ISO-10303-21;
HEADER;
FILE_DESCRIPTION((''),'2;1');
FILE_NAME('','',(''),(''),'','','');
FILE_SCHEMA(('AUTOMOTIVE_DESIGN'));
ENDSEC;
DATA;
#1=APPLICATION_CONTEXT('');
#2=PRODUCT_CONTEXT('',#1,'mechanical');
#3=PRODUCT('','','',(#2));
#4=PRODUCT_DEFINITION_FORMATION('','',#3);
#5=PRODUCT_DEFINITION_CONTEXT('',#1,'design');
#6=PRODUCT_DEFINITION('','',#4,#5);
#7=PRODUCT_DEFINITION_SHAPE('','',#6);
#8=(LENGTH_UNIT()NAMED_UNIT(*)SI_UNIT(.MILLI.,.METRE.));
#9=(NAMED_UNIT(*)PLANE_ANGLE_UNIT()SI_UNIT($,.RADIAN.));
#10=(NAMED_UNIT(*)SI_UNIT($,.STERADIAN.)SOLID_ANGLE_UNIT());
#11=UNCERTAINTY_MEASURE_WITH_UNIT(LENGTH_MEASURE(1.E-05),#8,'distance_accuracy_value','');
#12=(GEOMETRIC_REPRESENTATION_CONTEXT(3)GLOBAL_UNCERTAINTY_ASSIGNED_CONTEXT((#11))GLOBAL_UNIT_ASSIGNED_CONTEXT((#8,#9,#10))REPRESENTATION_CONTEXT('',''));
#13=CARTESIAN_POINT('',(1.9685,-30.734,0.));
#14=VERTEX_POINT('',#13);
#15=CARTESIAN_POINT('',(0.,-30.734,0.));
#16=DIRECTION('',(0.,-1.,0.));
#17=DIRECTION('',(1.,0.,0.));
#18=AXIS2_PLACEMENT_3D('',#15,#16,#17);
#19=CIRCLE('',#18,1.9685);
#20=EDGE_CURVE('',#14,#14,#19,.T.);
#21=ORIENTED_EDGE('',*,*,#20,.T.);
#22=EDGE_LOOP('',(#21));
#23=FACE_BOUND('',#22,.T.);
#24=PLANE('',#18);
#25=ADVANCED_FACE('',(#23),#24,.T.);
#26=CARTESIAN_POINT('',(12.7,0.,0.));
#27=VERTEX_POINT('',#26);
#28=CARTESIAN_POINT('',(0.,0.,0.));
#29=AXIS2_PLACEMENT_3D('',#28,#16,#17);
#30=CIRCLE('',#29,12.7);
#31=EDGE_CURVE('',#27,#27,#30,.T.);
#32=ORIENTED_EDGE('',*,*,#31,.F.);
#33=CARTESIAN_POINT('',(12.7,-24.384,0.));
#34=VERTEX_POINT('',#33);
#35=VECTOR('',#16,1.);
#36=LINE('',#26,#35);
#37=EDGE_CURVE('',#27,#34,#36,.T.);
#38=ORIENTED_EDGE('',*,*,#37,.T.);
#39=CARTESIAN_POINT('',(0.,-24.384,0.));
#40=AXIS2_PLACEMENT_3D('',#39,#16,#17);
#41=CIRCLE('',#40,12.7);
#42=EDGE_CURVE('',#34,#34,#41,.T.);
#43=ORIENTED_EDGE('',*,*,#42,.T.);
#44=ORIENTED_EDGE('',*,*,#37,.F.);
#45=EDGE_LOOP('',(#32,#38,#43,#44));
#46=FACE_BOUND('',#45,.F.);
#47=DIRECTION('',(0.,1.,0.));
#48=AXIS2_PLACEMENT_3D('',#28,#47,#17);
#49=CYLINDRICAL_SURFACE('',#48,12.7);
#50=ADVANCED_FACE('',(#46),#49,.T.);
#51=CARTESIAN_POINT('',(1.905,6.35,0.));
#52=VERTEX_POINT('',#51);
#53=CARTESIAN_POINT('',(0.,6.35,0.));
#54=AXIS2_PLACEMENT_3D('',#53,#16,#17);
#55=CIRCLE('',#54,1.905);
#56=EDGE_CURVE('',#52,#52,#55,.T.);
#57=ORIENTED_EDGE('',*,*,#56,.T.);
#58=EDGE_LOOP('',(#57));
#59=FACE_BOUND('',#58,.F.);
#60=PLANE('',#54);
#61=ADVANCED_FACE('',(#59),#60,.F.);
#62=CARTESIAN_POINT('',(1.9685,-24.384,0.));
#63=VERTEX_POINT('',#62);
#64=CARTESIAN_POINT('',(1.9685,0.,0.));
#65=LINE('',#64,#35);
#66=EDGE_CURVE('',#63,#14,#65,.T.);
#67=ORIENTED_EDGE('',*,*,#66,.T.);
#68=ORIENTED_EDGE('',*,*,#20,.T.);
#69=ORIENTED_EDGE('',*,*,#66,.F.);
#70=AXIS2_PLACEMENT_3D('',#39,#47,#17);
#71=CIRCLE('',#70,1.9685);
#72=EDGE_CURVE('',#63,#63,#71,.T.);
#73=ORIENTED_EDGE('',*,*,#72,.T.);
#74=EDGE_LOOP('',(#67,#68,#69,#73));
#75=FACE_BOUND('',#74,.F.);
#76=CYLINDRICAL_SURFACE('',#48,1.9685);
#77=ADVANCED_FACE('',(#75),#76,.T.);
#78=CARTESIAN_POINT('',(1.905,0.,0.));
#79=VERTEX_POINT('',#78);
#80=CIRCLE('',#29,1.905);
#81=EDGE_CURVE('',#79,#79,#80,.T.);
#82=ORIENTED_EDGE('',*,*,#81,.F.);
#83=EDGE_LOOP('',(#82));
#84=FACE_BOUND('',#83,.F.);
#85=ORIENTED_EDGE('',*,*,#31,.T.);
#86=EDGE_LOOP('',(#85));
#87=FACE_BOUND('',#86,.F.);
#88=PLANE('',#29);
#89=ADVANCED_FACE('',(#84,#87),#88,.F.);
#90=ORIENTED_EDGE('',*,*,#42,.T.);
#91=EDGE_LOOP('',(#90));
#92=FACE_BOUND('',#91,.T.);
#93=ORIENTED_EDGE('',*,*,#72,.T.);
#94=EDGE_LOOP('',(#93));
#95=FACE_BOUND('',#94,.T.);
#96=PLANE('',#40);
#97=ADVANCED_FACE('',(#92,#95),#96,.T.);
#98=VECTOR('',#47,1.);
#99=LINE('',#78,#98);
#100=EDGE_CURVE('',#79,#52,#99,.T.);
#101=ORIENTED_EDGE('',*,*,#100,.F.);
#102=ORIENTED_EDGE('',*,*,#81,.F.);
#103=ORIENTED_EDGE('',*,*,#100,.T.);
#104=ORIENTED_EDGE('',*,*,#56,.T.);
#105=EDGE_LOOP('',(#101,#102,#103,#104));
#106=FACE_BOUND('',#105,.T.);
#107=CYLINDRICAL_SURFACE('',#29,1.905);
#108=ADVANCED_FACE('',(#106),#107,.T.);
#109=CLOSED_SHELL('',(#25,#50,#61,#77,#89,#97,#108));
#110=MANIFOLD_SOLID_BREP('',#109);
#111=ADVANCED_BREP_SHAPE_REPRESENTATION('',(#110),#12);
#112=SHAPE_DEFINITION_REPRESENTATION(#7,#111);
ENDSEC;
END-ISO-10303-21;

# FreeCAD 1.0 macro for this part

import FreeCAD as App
import Part
import Sketcher
Q = App.Units.Quantity

doc = App.newDocument("Part")
body = doc.addObject("PartDesign::Body", "Body")

# Sketch on XZ plane
sketch1 = doc.addObject("Sketcher::SketchObject", "Sketch")
body.addObject(sketch1)
sketch1.AttachmentSupport = (doc.XZ_Plane, [""])
sketch1.MapMode = "FlatFace"
sketch1.addGeometry(Part.Circle(App.Vector(0, 0, 0), App.Vector(0, 0, 1), 13), False)
sketch1.addConstraint([
    Sketcher.Constraint("Coincident", 0, 3, -1, 1),
    Sketcher.Constraint("Diameter", 0, Q("1 in")),
])
pad1 = doc.addObject("PartDesign::Pad", "Pad")
body.addObject(pad1)
pad1.Profile = sketch1
pad1.Length = Q("0.96 in")

# Sketch on XZ plane
sketch2 = doc.addObject("Sketcher::SketchObject", "Sketch001")
body.addObject(sketch2)
sketch2.AttachmentSupport = (doc.XZ_Plane, [""])
sketch2.MapMode = "FlatFace"
sketch2.addGeometry(Part.Circle(App.Vector(0, 0, 0), App.Vector(0, 0, 1), 2), False)
sketch2.addConstraint([
    Sketcher.Constraint("Coincident", 0, 3, -1, 1),
    Sketcher.Constraint("Diameter", 0, Q("0.155 in")),
])
pad2 = doc.addObject("PartDesign::Pad", "Pad001")
body.addObject(pad2)
pad2.Profile = sketch2
pad2.Length = Q("1.21 in")

# Sketch on XZ plane
sketch3 = doc.addObject("Sketcher::SketchObject", "Sketch002")
body.addObject(sketch3)
sketch3.AttachmentSupport = (doc.XZ_Plane, [""])
sketch3.MapMode = "FlatFace"
sketch3.addGeometry(Part.Circle(App.Vector(0, 0, 0), App.Vector(0, 0, 1), 1.9), False)
sketch3.addConstraint([
    Sketcher.Constraint("Coincident", 0, 3, -1, 1),
    Sketcher.Constraint("Diameter", 0, Q("0.15 in")),
])
pad3 = doc.addObject("PartDesign::Pad", "Pad002")
body.addObject(pad3)
pad3.Profile = sketch3
pad3.Length = Q("0.25 in")
pad3.Reversed = True

doc.recompute()
